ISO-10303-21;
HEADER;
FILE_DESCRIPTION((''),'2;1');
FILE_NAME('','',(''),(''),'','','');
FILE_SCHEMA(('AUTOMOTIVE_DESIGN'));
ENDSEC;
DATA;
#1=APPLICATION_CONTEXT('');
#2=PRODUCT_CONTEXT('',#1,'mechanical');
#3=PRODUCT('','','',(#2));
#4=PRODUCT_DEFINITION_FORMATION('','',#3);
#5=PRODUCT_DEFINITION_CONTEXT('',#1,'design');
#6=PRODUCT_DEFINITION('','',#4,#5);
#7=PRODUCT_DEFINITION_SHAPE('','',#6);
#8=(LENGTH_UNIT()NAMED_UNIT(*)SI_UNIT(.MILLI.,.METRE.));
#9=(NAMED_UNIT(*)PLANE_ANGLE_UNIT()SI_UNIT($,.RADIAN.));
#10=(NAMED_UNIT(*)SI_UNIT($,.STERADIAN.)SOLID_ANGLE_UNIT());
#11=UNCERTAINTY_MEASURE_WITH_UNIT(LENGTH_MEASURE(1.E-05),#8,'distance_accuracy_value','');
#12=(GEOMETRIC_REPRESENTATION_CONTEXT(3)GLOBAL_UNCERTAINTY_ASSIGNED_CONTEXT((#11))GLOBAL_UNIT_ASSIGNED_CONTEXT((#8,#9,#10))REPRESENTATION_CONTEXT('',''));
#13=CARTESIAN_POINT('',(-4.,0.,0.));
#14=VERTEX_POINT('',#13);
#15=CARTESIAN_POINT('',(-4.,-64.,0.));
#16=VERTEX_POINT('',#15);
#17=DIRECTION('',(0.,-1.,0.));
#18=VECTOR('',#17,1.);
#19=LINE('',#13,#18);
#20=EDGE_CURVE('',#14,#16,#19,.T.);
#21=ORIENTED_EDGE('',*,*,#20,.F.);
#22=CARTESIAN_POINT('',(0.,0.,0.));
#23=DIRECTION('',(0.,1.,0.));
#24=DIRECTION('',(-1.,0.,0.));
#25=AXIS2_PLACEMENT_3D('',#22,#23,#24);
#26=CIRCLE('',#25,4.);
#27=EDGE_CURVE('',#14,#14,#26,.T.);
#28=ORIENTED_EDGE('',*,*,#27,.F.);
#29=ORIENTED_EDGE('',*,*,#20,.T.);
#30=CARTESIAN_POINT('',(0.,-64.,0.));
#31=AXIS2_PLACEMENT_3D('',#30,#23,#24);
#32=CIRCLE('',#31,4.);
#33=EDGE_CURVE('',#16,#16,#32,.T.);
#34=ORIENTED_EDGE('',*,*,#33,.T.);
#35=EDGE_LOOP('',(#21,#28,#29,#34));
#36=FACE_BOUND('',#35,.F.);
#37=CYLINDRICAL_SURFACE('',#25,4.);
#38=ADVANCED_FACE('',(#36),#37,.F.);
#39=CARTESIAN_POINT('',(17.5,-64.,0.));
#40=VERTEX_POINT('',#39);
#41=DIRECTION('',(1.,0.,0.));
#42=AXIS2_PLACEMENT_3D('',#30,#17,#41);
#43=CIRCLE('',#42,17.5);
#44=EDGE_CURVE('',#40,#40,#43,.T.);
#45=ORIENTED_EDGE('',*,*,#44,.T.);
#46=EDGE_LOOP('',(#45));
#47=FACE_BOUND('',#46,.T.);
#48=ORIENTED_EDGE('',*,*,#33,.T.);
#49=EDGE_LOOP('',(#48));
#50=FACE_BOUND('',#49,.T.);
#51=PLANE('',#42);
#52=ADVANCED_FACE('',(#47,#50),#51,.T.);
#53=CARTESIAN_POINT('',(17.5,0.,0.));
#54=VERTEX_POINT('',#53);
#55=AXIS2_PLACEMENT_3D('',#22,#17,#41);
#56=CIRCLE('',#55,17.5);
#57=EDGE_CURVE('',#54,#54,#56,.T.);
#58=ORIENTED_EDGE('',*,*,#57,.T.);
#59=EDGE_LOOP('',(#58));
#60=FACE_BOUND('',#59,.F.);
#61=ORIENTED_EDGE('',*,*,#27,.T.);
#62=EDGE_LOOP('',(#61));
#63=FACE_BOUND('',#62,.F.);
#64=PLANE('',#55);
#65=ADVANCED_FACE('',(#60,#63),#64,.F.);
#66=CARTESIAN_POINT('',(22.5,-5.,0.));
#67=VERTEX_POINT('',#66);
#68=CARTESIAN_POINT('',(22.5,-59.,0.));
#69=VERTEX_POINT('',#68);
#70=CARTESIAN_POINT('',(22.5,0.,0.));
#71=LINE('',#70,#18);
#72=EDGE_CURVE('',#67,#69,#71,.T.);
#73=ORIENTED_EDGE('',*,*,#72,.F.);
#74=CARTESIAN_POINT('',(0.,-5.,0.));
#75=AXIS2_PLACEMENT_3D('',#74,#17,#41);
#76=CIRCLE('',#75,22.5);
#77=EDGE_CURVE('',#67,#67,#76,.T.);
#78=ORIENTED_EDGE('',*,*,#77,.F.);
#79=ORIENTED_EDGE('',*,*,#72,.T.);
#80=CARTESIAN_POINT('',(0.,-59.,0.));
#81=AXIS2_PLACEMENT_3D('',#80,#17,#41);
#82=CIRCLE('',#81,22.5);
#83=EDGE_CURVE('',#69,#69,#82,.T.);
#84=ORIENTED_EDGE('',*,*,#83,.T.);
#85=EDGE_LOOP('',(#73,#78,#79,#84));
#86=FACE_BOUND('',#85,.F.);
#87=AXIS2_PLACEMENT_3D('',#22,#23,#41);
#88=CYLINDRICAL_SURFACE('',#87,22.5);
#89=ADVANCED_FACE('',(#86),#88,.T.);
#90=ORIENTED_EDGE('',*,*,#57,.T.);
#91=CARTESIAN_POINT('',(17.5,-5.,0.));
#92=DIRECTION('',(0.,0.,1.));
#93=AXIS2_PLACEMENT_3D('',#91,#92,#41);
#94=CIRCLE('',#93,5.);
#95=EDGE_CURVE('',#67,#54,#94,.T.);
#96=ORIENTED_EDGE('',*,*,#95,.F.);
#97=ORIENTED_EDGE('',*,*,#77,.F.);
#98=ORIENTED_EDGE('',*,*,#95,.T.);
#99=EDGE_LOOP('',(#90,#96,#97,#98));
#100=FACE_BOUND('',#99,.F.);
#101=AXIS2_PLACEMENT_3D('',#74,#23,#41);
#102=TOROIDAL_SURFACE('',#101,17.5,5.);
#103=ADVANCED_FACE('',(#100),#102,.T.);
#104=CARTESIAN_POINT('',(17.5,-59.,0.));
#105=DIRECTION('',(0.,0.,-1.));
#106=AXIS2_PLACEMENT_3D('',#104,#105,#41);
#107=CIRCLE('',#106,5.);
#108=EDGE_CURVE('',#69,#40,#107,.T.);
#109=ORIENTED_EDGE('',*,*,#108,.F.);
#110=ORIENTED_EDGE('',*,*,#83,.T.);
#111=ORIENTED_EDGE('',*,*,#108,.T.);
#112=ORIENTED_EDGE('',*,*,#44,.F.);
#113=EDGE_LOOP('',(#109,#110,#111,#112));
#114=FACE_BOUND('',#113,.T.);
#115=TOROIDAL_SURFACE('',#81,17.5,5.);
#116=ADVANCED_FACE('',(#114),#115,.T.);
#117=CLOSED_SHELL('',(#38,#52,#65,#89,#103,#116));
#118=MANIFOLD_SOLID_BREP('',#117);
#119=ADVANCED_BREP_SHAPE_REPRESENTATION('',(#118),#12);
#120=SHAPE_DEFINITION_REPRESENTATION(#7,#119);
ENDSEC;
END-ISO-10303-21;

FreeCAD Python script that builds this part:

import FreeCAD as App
import Part
import Sketcher
Q = App.Units.Quantity


def edges_at(feature, points):
    """Names of the edges that pass closest to the given points."""
    edges = feature.Shape.Edges
    near = lambda p: min(range(len(edges)), key=lambda i: edges[i].distToShape(Part.Vertex(*p))[0])
    return sorted({f"Edge{near(p) + 1}" for p in points})

doc = App.newDocument("Part")
body = doc.addObject("PartDesign::Body", "Body")

sketch1 = body.newObject("Sketcher::SketchObject", "Sketch")
sketch1.AttachmentSupport = (doc.getObject("XZ_Plane"), [""])
sketch1.MapMode = "FlatFace"
sketch1.addGeometry(Part.Circle(App.Vector(0, 0, 0), App.Vector(0, 0, 1), 22.5), False)
sketch1.addConstraint([
    Sketcher.Constraint("Coincident", 0, 3, -1, 1),
    Sketcher.Constraint("Diameter", 0, Q("45 mm")),
])
pad1 = body.newObject("PartDesign::Pad", "Pad")
pad1.Profile = sketch1
pad1.Length = 64

sketch2 = body.newObject("Sketcher::SketchObject", "Sketch001")
sketch2.AttachmentSupport = (doc.getObject("XZ_Plane"), [""])
sketch2.MapMode = "FlatFace"
sketch2.addGeometry(Part.Circle(App.Vector(0, 0, 0), App.Vector(0, 0, 1), 4), False)
sketch2.addConstraint([
    Sketcher.Constraint("Coincident", 0, 3, -1, 1),
    Sketcher.Constraint("Diameter", 0, Q("8 mm")),
])
pocket1 = body.newObject("PartDesign::Pocket", "Pocket")
pocket1.Profile = sketch2
pocket1.Length = 64
pocket1.Reversed = True
doc.recompute()

fillet = body.newObject("PartDesign::Fillet", "Fillet")
fillet.Base = (pocket1, edges_at(pocket1, [(-22.5, -64, 0), (-22.5, 0, 0)]))
fillet.Radius = 5

doc.recompute()
